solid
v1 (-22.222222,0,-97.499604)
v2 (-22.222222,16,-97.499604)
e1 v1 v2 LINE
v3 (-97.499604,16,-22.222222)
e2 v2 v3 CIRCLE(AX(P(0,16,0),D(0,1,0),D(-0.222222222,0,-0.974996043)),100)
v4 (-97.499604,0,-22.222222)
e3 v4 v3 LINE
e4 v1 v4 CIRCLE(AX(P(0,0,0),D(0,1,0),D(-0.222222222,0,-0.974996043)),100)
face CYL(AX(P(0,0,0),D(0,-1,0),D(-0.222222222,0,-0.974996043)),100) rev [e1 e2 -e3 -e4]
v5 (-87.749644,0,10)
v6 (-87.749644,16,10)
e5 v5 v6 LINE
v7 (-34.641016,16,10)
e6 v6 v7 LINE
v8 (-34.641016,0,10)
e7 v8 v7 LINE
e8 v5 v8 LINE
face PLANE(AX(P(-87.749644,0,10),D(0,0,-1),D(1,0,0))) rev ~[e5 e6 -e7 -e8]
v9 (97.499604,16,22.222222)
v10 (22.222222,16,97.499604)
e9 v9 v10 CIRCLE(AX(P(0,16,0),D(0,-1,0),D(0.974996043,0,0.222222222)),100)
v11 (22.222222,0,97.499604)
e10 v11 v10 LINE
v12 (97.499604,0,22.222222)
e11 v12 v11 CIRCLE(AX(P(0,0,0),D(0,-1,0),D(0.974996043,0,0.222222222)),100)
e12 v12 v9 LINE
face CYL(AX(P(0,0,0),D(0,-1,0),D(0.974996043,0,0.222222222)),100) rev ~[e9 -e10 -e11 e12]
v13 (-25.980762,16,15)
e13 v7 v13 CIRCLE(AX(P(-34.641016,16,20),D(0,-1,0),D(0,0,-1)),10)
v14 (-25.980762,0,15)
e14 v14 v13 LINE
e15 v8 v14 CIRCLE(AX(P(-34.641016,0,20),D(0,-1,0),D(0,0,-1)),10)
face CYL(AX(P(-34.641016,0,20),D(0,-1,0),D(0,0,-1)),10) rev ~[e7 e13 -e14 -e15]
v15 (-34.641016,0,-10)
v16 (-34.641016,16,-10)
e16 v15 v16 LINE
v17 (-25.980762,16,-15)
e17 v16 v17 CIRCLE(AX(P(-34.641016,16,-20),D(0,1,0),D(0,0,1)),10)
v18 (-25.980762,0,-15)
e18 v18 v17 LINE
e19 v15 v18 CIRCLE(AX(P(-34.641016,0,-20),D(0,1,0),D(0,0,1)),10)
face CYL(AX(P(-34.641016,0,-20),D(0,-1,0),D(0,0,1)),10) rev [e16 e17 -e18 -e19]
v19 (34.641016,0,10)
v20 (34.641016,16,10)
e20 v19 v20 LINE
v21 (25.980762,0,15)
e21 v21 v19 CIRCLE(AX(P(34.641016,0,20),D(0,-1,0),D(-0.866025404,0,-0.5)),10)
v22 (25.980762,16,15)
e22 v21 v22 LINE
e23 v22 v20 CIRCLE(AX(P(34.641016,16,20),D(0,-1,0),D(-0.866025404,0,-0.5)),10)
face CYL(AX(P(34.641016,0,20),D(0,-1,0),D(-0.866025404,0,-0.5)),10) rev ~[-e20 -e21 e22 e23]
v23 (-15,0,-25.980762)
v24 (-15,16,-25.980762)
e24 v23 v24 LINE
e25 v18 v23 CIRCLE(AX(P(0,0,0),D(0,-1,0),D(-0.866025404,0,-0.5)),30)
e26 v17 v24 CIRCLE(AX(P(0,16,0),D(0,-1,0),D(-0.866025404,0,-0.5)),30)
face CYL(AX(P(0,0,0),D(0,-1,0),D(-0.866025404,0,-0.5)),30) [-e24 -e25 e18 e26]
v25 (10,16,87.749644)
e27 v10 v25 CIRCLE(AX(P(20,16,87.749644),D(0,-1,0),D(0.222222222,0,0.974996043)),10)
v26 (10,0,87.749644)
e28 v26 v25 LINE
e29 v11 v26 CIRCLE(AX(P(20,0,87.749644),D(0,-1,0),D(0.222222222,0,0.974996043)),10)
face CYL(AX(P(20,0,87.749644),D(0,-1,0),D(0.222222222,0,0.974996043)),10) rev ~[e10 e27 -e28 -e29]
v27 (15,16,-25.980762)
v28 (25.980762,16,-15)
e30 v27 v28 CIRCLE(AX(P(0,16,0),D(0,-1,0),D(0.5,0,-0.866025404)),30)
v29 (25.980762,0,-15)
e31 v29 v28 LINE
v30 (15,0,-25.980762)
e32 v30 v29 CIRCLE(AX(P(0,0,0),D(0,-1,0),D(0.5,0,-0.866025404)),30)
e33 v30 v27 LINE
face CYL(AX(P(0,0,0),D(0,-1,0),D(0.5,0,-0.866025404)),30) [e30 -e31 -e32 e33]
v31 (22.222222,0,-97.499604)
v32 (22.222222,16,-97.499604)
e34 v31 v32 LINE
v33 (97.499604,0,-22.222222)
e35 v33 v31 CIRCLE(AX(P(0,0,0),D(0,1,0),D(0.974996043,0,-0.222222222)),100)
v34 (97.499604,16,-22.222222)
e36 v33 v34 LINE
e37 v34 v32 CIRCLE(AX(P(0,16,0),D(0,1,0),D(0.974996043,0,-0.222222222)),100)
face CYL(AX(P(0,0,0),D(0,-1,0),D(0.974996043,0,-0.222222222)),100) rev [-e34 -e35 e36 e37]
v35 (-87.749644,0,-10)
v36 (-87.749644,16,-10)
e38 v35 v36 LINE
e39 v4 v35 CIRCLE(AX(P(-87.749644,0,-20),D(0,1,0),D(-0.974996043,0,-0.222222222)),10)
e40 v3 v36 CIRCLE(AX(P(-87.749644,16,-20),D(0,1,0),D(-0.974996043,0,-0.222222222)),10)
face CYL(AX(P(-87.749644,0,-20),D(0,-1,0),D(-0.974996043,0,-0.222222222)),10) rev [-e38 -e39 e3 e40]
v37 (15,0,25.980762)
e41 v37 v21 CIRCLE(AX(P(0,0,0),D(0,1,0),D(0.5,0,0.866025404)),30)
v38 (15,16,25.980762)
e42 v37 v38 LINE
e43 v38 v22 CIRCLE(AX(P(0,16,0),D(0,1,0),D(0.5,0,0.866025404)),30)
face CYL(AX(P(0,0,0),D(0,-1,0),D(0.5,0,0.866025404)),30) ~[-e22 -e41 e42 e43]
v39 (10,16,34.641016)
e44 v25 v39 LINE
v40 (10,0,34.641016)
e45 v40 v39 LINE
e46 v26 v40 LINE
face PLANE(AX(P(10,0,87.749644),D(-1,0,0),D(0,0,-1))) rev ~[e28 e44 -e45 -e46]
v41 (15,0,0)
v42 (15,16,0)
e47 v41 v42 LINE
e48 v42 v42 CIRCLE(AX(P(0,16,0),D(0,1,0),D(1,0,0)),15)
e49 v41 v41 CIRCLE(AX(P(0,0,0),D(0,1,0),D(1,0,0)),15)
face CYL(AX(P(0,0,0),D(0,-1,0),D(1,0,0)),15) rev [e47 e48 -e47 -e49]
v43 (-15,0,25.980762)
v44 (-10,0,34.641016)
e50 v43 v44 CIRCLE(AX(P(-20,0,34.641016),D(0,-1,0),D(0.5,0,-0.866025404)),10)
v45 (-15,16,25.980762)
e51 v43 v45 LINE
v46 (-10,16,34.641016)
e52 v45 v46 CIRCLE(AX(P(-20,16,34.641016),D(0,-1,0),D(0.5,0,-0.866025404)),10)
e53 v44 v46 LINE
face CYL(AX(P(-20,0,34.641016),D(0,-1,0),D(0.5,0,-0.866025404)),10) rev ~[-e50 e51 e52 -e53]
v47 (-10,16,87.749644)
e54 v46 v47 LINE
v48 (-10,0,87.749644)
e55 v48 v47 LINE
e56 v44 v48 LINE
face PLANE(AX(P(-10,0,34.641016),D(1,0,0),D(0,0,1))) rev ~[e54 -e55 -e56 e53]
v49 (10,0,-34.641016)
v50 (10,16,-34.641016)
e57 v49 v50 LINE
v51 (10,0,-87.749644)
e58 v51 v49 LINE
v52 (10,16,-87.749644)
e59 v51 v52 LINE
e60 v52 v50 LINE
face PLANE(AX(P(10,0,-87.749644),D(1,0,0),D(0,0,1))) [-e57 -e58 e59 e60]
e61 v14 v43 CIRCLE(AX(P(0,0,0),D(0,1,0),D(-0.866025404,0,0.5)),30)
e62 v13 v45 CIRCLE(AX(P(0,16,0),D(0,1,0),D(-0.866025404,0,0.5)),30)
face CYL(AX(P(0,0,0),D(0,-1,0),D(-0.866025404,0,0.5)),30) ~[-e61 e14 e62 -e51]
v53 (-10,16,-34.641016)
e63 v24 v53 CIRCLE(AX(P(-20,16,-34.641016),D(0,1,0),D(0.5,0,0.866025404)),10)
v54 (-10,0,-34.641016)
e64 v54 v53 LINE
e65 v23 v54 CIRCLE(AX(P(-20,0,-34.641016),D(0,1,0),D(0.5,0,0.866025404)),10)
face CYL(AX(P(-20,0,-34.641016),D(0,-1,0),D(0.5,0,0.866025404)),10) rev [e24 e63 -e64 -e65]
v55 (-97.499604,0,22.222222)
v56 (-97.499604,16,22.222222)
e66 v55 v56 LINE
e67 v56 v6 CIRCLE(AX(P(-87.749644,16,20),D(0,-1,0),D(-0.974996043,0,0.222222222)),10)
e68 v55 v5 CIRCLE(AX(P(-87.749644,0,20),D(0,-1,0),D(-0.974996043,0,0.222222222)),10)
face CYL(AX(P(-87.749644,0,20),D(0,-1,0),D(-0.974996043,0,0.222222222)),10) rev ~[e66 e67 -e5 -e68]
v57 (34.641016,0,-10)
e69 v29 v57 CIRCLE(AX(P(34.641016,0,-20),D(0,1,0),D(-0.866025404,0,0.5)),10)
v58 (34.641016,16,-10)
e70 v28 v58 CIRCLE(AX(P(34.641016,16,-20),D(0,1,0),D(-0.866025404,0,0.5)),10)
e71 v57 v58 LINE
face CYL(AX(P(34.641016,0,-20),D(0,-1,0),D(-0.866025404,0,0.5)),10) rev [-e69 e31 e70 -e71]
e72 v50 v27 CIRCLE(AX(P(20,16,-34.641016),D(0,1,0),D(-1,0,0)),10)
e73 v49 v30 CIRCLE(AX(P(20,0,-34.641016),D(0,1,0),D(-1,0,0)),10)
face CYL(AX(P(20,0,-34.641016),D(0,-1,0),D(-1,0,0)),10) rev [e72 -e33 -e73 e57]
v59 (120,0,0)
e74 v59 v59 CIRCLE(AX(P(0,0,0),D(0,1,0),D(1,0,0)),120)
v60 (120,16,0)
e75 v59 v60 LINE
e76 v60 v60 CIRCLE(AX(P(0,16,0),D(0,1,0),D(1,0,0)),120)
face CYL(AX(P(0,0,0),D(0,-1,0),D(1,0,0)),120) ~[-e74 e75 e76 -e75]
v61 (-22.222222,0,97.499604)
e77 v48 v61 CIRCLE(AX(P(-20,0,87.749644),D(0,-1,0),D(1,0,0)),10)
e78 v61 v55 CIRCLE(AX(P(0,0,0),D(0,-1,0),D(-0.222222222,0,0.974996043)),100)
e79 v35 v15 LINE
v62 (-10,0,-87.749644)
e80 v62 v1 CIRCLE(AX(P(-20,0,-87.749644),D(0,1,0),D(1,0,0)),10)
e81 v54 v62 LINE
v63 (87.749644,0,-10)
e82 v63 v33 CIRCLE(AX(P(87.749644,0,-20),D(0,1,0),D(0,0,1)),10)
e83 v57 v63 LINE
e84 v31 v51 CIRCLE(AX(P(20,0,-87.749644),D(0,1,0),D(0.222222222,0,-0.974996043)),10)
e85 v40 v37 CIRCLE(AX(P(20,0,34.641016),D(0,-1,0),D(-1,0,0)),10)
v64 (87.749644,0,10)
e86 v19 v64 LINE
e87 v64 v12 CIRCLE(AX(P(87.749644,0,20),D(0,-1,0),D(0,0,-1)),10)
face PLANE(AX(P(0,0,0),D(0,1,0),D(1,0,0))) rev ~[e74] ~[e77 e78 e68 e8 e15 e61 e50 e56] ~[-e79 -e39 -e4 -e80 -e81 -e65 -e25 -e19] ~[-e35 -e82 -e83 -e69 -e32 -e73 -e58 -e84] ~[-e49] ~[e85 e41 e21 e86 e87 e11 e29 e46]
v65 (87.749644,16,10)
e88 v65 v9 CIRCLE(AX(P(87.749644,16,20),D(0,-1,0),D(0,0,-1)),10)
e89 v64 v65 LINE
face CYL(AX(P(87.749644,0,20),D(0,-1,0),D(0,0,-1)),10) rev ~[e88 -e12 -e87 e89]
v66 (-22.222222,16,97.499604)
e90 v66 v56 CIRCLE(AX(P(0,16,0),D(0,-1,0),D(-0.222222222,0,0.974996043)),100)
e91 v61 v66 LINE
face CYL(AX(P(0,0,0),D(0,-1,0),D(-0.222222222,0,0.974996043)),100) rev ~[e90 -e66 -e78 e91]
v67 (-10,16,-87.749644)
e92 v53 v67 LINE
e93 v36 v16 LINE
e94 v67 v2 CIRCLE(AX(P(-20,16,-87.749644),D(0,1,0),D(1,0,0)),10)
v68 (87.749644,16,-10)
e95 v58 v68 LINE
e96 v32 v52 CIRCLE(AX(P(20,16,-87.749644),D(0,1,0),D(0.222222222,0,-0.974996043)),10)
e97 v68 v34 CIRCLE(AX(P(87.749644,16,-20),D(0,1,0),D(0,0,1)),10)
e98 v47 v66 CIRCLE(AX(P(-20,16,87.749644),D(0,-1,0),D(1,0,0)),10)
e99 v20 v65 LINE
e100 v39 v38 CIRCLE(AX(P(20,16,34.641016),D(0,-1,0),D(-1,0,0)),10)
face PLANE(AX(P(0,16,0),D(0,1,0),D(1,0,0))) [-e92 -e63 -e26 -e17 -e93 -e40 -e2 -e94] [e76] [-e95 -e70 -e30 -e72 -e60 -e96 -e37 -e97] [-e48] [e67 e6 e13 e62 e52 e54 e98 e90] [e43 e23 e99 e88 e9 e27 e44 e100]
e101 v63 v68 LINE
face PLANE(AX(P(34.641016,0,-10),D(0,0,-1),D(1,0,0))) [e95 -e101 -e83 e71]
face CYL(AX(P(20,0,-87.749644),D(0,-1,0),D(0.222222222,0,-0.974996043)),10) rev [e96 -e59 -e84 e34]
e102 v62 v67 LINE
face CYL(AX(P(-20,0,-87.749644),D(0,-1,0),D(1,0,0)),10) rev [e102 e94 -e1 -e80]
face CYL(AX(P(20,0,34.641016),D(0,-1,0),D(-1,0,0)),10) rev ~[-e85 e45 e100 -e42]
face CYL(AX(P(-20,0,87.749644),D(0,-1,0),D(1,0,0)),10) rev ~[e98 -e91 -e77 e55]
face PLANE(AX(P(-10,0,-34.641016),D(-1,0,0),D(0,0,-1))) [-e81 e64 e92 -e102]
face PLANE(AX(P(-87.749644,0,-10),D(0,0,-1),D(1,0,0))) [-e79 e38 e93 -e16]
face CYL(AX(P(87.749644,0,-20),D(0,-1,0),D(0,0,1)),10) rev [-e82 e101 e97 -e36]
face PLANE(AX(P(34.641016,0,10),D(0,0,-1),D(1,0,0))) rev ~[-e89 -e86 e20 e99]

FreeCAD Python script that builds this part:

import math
import FreeCAD as App
import Part
import Sketcher

V = App.Vector
Q = App.Units.Quantity

doc = App.newDocument("Part")
body = doc.addObject("PartDesign::Body", "Body")

# Sketch on XZ plane
sketch1 = body.newObject("Sketcher::SketchObject", "Sketch")
sketch1.AttachmentSupport = (doc.getObject("XZ_Plane"), [""])
sketch1.MapMode = "FlatFace"
sketch1.addGeometry([
    Part.Circle(V(0, 0, 0), V(0, 0, 1), 120),  # 0
    Part.ArcOfCircle(Part.Circle(V(-20, 35, 0), V(0, 0, 1), 10), math.radians(-60), math.radians(0)),  # 1
    Part.LineSegment(V(-10, 35, 0), V(-10, 88, 0)),  # 2
    Part.ArcOfCircle(Part.Circle(V(-20, 88, 0), V(0, 0, 1), 10), math.radians(0), math.radians(103)),  # 3
    Part.ArcOfCircle(Part.Circle(V(0, 0, 0), V(0, 0, 1), 100), math.radians(103), math.radians(167)),  # 4
    Part.ArcOfCircle(Part.Circle(V(-88, 20, 0), V(0, 0, 1), 10), math.radians(167), math.radians(270)),  # 5
    Part.LineSegment(V(-88, 10, 0), V(-35, 10, 0)),  # 6
    Part.ArcOfCircle(Part.Circle(V(-35, 20, 0), V(0, 0, 1), 10), math.radians(-90), math.radians(-30)),  # 7
    Part.ArcOfCircle(Part.Circle(V(0, 0, 0), V(0, 0, 1), 30), math.radians(120), math.radians(150)),  # 8
    Part.ArcOfCircle(Part.Circle(V(35, 20, 0), V(0, 0, 1), 10), math.radians(-150), math.radians(-90)),  # 9
    Part.LineSegment(V(35, 10, 0), V(88, 10, 0)),  # 10
    Part.ArcOfCircle(Part.Circle(V(88, 20, 0), V(0, 0, 1), 10), math.radians(-90), math.radians(13)),  # 11
    Part.ArcOfCircle(Part.Circle(V(0, 0, 0), V(0, 0, 1), 100), math.radians(13), math.radians(77)),  # 12
    Part.ArcOfCircle(Part.Circle(V(20, 88, 0), V(0, 0, 1), 10), math.radians(77), math.radians(180)),  # 13
    Part.LineSegment(V(10, 88, 0), V(10, 35, 0)),  # 14
    Part.ArcOfCircle(Part.Circle(V(20, 35, 0), V(0, 0, 1), 10), math.radians(180), math.radians(240)),  # 15
    Part.ArcOfCircle(Part.Circle(V(0, 0, 0), V(0, 0, 1), 30), math.radians(30), math.radians(60)),  # 16
    Part.LineSegment(V(-10, -88, 0), V(-10, -35, 0)),  # 17
    Part.ArcOfCircle(Part.Circle(V(-20, -35, 0), V(0, 0, 1), 10), math.radians(0), math.radians(60)),  # 18
    Part.ArcOfCircle(Part.Circle(V(0, 0, 0), V(0, 0, 1), 30), math.radians(-150), math.radians(-120)),  # 19
    Part.ArcOfCircle(Part.Circle(V(-35, -20, 0), V(0, 0, 1), 10), math.radians(30), math.radians(90)),  # 20
    Part.LineSegment(V(-35, -10, 0), V(-88, -10, 0)),  # 21
    Part.ArcOfCircle(Part.Circle(V(-88, -20, 0), V(0, 0, 1), 10), math.radians(90), math.radians(193)),  # 22
    Part.ArcOfCircle(Part.Circle(V(0, 0, 0), V(0, 0, 1), 100), math.radians(-167), math.radians(-103)),  # 23
    Part.ArcOfCircle(Part.Circle(V(-20, -88, 0), V(0, 0, 1), 10), math.radians(-103), math.radians(0)),  # 24
    Part.Circle(V(0, 0, 0), V(0, 0, 1), 15),  # 25
    Part.LineSegment(V(88, -10, 0), V(35, -10, 0)),  # 26
    Part.ArcOfCircle(Part.Circle(V(35, -20, 0), V(0, 0, 1), 10), math.radians(90), math.radians(150)),  # 27
    Part.ArcOfCircle(Part.Circle(V(0, 0, 0), V(0, 0, 1), 30), math.radians(-60), math.radians(-30)),  # 28
    Part.ArcOfCircle(Part.Circle(V(20, -35, 0), V(0, 0, 1), 10), math.radians(120), math.radians(180)),  # 29
    Part.LineSegment(V(10, -35, 0), V(10, -88, 0)),  # 30
    Part.ArcOfCircle(Part.Circle(V(20, -88, 0), V(0, 0, 1), 10), math.radians(180), math.radians(283)),  # 31
    Part.ArcOfCircle(Part.Circle(V(0, 0, 0), V(0, 0, 1), 100), math.radians(-77), math.radians(-13)),  # 32
    Part.ArcOfCircle(Part.Circle(V(88, -20, 0), V(0, 0, 1), 10), math.radians(-13), math.radians(90)),  # 33
], False)
sketch1.addConstraint([
    Sketcher.Constraint("Tangent", 1, 2, 2, 1),
    Sketcher.Constraint("Tangent", 2, 2, 3, 1),
    Sketcher.Constraint("Tangent", 3, 2, 4, 1),
    Sketcher.Constraint("Tangent", 4, 2, 5, 1),
    Sketcher.Constraint("Tangent", 5, 2, 6, 1),
    Sketcher.Constraint("Tangent", 6, 2, 7, 1),
    Sketcher.Constraint("Tangent", 7, 2, 8, 2),
    Sketcher.Constraint("Tangent", 8, 1, 1, 1),
    Sketcher.Constraint("Tangent", 9, 2, 10, 1),
    Sketcher.Constraint("Tangent", 10, 2, 11, 1),
    Sketcher.Constraint("Tangent", 11, 2, 12, 1),
    Sketcher.Constraint("Tangent", 12, 2, 13, 1),
    Sketcher.Constraint("Tangent", 13, 2, 14, 1),
    Sketcher.Constraint("Tangent", 14, 2, 15, 1),
    Sketcher.Constraint("Tangent", 15, 2, 16, 2),
    Sketcher.Constraint("Tangent", 16, 1, 9, 1),
    Sketcher.Constraint("Tangent", 17, 2, 18, 1),
    Sketcher.Constraint("Tangent", 18, 2, 19, 2),
    Sketcher.Constraint("Tangent", 19, 1, 20, 1),
    Sketcher.Constraint("Tangent", 20, 2, 21, 1),
    Sketcher.Constraint("Tangent", 21, 2, 22, 1),
    Sketcher.Constraint("Tangent", 22, 2, 23, 1),
    Sketcher.Constraint("Tangent", 23, 2, 24, 1),
    Sketcher.Constraint("Tangent", 24, 2, 17, 1),
    Sketcher.Constraint("Tangent", 26, 2, 27, 1),
    Sketcher.Constraint("Tangent", 27, 2, 28, 2),
    Sketcher.Constraint("Tangent", 28, 1, 29, 1),
    Sketcher.Constraint("Tangent", 29, 2, 30, 1),
    Sketcher.Constraint("Tangent", 30, 2, 31, 1),
    Sketcher.Constraint("Tangent", 31, 2, 32, 1),
    Sketcher.Constraint("Tangent", 32, 2, 33, 1),
    Sketcher.Constraint("Tangent", 33, 2, 26, 1),
    Sketcher.Constraint("Vertical", 2),
    Sketcher.Constraint("Horizontal", 6),
    Sketcher.Constraint("Horizontal", 10),
    Sketcher.Constraint("Vertical", 14),
    Sketcher.Constraint("Vertical", 17),
    Sketcher.Constraint("Horizontal", 21),
    Sketcher.Constraint("Horizontal", 26),
    Sketcher.Constraint("Vertical", 30),
    Sketcher.Constraint("Coincident", 0, 3, -1, 1),
    Sketcher.Constraint("Coincident", 4, 3, -1, 1),
    Sketcher.Constraint("Coincident", 8, 3, -1, 1),
    Sketcher.Constraint("Coincident", 12, 3, -1, 1),
    Sketcher.Constraint("Coincident", 16, 3, -1, 1),
    Sketcher.Constraint("Coincident", 19, 3, -1, 1),
    Sketcher.Constraint("Coincident", 23, 3, -1, 1),
    Sketcher.Constraint("Coincident", 25, 3, -1, 1),
    Sketcher.Constraint("Coincident", 28, 3, -1, 1),
    Sketcher.Constraint("Coincident", 32, 3, -1, 1),
    Sketcher.Constraint("Equal", 1, 3),
    Sketcher.Constraint("Equal", 3, 5),
    Sketcher.Constraint("Equal", 5, 7),
    Sketcher.Constraint("Equal", 7, 9),
    Sketcher.Constraint("Equal", 9, 11),
    Sketcher.Constraint("Equal", 4, 12),
    Sketcher.Constraint("Equal", 11, 13),
    Sketcher.Constraint("Equal", 13, 15),
    Sketcher.Constraint("Equal", 8, 16),
    Sketcher.Constraint("Equal", 15, 18),
    Sketcher.Constraint("Equal", 16, 19),
    Sketcher.Constraint("Equal", 18, 20),
    Sketcher.Constraint("Equal", 20, 22),
    Sketcher.Constraint("Equal", 12, 23),
    Sketcher.Constraint("Equal", 22, 24),
    Sketcher.Constraint("Equal", 24, 27),
    Sketcher.Constraint("Equal", 19, 28),
    Sketcher.Constraint("Equal", 27, 29),
    Sketcher.Constraint("Equal", 29, 31),
    Sketcher.Constraint("Equal", 23, 32),
    Sketcher.Constraint("Equal", 31, 33),
    Sketcher.Constraint("Horizontal", 7, 3, 9, 3),
    Sketcher.Constraint("Horizontal", 3, 3, 13, 3),
    Sketcher.Constraint("Horizontal", 22, 3, 27, 3),
    Sketcher.Constraint("Horizontal", 18, 3, 29, 3),
    Sketcher.Constraint("Vertical", 3, 3, 18, 3),
    Sketcher.Constraint("Vertical", 7, 3, 20, 3),
    Sketcher.Constraint("Equal", 26, 2),
    Sketcher.Constraint("Diameter", 0, Q("240 mm")),
    Sketcher.Constraint("Diameter", 25, Q("30 mm")),
    Sketcher.Constraint("Radius", 1, Q("10 mm")),
    Sketcher.Constraint("Radius", 4, Q("100 mm")),
    Sketcher.Constraint("Radius", 8, Q("30 mm")),
    Sketcher.Constraint("DistanceX", 1, 3, -1, 1, Q("20 mm")),
])
pad1 = body.newObject("PartDesign::Pad", "Pad")
pad1.Profile = sketch1
pad1.Length = 16
pad1.Reversed = True

doc.recompute()
